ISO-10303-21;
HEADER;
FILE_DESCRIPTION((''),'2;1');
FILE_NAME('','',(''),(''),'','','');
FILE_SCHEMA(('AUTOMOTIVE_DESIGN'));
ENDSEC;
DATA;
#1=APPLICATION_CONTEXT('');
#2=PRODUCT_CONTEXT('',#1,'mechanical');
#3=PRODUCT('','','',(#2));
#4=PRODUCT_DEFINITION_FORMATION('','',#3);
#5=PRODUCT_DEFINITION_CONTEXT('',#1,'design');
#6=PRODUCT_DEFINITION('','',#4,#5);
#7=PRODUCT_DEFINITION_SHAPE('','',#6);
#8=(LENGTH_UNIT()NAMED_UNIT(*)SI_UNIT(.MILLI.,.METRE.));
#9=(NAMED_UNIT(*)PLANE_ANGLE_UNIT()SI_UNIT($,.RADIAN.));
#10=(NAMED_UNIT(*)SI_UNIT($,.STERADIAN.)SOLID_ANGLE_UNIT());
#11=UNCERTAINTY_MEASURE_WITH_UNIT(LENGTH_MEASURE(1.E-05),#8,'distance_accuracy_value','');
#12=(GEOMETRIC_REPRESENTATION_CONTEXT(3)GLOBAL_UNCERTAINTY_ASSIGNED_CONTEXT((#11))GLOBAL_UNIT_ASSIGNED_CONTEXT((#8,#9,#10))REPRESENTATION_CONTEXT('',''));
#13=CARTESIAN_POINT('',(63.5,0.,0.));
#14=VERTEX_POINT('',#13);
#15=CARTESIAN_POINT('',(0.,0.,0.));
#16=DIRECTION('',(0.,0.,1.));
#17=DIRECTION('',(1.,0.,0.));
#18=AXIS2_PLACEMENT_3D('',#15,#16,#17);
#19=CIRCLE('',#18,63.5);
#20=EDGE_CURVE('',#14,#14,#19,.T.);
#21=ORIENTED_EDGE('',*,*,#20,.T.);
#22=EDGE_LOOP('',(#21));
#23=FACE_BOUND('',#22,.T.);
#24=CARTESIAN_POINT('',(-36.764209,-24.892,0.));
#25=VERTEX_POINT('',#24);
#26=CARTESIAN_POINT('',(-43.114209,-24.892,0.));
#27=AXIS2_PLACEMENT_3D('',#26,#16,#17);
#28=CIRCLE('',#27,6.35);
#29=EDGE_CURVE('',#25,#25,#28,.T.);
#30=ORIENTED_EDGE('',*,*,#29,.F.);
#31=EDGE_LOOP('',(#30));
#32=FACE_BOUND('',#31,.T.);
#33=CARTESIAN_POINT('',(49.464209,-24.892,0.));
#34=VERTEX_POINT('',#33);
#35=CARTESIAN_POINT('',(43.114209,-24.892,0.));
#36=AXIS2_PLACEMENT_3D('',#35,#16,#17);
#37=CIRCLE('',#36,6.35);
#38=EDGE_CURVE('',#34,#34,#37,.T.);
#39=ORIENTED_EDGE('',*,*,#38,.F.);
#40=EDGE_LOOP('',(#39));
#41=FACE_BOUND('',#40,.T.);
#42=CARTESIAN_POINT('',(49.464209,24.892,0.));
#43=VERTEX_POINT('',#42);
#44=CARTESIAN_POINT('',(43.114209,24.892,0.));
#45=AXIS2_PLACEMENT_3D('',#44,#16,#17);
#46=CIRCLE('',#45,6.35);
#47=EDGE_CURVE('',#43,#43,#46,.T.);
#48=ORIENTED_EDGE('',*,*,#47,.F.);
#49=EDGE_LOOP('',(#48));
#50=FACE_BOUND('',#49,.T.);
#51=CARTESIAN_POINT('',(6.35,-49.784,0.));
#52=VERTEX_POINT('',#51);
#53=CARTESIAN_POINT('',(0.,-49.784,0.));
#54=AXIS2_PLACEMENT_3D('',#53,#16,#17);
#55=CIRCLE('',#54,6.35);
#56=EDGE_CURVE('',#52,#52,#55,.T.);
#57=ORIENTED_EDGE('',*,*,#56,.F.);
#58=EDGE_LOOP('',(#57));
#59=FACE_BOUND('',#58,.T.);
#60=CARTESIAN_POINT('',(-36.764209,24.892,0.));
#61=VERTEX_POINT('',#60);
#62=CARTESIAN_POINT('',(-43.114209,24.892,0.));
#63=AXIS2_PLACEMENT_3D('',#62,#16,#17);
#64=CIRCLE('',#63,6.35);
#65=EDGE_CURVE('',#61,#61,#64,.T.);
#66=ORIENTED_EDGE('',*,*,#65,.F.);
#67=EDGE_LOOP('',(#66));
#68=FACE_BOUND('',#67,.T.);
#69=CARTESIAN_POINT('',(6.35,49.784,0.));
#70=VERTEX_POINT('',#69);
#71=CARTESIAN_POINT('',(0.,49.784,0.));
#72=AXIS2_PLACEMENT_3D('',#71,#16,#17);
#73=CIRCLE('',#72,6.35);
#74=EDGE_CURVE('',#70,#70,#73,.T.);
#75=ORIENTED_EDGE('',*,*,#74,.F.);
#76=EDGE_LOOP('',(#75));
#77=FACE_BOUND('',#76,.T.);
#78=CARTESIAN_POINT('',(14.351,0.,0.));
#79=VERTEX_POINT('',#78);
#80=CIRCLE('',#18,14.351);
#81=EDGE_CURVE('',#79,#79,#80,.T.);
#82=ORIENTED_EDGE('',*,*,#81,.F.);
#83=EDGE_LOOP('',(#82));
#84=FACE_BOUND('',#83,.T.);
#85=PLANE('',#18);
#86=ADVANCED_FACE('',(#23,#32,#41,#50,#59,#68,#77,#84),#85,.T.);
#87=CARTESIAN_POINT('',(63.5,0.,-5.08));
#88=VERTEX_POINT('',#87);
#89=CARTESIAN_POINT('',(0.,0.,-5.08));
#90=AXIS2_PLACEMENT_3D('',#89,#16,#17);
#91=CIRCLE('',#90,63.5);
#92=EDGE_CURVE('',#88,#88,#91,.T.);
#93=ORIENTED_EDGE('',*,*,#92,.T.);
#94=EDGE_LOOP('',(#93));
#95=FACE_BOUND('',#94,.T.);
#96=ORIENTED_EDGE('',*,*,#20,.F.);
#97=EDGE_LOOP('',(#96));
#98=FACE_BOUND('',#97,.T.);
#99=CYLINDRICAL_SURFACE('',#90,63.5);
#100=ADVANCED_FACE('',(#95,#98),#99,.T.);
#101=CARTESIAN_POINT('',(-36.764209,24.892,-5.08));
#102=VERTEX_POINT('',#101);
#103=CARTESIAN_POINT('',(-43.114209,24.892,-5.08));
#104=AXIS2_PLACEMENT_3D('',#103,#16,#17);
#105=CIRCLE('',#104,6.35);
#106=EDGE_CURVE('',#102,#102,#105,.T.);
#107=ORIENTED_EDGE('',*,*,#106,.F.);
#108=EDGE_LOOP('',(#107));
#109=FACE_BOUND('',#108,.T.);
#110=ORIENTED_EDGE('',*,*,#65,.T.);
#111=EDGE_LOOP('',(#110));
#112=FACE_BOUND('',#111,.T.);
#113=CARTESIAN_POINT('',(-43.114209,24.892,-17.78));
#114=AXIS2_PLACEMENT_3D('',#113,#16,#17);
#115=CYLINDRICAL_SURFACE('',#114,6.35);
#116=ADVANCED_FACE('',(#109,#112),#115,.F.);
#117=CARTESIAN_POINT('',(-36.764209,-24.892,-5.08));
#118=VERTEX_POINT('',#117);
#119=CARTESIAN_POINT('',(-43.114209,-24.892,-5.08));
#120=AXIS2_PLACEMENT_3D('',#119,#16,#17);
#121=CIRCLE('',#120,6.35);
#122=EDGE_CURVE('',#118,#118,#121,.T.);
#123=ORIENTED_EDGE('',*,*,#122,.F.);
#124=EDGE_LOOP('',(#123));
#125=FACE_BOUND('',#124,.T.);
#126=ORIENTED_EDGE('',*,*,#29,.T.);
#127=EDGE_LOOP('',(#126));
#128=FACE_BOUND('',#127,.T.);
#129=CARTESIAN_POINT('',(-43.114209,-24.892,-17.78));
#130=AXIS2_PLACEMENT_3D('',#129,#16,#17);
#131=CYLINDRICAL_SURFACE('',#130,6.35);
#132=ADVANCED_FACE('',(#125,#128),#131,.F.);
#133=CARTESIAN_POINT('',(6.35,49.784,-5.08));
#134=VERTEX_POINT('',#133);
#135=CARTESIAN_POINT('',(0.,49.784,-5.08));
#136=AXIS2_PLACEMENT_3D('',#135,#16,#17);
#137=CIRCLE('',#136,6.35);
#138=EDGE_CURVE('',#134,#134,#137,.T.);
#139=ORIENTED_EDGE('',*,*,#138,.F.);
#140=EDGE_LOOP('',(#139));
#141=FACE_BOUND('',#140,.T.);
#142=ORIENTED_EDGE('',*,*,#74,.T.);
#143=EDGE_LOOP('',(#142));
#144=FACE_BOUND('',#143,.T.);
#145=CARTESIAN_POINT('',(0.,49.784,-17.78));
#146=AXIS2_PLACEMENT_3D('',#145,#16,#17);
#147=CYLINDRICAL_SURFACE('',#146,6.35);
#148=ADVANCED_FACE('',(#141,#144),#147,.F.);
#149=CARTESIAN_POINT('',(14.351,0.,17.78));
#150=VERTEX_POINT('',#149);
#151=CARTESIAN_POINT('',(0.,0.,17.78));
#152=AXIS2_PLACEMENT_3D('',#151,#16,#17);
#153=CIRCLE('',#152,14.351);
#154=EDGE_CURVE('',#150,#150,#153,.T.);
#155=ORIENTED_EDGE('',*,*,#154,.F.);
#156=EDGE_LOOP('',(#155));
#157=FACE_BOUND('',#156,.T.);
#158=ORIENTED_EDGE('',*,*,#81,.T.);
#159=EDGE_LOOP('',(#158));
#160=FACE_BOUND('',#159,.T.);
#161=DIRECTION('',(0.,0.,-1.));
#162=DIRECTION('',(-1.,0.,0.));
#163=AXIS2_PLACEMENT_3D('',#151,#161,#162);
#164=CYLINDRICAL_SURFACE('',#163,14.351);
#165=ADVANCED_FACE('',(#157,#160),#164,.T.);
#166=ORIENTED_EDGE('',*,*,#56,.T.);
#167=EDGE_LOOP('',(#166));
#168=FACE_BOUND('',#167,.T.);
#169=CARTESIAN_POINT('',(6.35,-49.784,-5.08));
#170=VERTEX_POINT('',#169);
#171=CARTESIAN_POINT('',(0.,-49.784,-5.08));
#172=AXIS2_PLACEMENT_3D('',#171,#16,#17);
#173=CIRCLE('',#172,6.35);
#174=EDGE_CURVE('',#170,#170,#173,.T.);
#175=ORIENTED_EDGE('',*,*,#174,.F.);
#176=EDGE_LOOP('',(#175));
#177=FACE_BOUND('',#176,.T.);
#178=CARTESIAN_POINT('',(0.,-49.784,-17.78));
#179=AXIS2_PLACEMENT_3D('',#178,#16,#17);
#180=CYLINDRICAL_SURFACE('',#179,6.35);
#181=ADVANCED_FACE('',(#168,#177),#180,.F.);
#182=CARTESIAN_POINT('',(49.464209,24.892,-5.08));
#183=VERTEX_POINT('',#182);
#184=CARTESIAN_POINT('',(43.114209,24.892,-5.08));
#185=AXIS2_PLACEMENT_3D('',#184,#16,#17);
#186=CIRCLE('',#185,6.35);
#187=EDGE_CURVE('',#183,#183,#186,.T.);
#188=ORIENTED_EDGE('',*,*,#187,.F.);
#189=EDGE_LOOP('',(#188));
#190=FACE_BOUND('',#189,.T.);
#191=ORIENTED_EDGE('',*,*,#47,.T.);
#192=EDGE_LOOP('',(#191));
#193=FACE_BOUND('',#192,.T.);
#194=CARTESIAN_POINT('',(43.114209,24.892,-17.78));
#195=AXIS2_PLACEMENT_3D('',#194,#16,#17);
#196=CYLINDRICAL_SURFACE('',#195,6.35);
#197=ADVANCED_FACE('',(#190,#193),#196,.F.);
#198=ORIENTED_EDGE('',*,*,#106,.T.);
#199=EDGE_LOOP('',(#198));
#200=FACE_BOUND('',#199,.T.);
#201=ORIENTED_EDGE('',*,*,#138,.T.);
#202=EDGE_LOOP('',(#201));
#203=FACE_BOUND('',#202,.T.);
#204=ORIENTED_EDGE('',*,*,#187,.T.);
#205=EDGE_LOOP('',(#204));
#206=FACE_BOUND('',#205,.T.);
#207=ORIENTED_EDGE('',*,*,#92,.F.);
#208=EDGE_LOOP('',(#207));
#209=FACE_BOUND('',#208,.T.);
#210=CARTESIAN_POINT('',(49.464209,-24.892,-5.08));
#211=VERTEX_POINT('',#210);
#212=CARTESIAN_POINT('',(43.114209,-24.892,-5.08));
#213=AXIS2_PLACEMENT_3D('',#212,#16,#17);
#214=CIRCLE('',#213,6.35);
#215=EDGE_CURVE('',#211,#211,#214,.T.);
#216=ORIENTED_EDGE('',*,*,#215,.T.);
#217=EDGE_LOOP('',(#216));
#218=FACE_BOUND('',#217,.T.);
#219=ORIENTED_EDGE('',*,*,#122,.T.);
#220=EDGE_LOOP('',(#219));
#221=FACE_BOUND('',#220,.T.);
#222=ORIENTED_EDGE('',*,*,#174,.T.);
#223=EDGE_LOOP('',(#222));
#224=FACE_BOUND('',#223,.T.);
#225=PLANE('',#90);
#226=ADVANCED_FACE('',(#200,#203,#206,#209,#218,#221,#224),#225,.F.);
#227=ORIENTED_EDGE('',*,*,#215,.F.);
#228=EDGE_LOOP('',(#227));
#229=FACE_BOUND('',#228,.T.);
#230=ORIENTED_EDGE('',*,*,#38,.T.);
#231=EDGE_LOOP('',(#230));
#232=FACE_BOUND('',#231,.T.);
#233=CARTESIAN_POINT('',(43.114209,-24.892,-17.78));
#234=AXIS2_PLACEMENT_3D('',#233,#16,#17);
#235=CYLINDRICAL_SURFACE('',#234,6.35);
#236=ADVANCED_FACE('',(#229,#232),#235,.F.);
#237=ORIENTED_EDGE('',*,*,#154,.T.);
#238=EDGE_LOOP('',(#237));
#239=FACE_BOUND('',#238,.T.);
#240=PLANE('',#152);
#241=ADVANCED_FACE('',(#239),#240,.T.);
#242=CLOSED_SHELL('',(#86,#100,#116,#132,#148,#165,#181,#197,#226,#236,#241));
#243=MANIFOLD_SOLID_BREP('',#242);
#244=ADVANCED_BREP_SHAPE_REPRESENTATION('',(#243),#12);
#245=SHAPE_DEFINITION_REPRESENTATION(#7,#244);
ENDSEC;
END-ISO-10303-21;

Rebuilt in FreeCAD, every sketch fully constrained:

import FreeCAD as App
import Part
import Sketcher
Q = App.Units.Quantity

doc = App.newDocument("Part")
body = doc.addObject("PartDesign::Body", "Body")

# Sketch on XY plane
sketch1 = body.newObject("Sketcher::SketchObject", "Sketch")
sketch1.AttachmentSupport = (doc.getObject("XY_Plane"), [""])
sketch1.MapMode = "FlatFace"
sketch1.addGeometry(Part.Circle(App.Vector(0, 0, 0), App.Vector(0, 0, 1), 63.5), False)
sketch1.addConstraint(Sketcher.Constraint("Coincident", 0, 3, -1, 1))
sketch1.addConstraint(Sketcher.Constraint("Diameter", 0, Q("5 in")))
pad1 = body.newObject("PartDesign::Pad", "Pad")
pad1.Profile = sketch1
pad1.Length = Q("0.2 in")
pad1.Reversed = True

# Sketch on XY plane
sketch2 = body.newObject("Sketcher::SketchObject", "Sketch001")
sketch2.AttachmentSupport = (doc.getObject("XY_Plane"), [""])
sketch2.MapMode = "FlatFace"
sketch2.addGeometry(Part.Circle(App.Vector(0, 0, 0), App.Vector(0, 0, 1), 14.351), False)
sketch2.addConstraint(Sketcher.Constraint("Coincident", 0, 3, -1, 1))
sketch2.addConstraint(Sketcher.Constraint("Diameter", 0, Q("1.13 in")))
pad2 = body.newObject("PartDesign::Pad", "Pad001")
pad2.Profile = sketch2
pad2.Length = Q("0.7 in")

# Sketch on XY plane
sketch3 = body.newObject("Sketcher::SketchObject", "Sketch002")
sketch3.AttachmentSupport = (doc.getObject("XY_Plane"), [""])
sketch3.MapMode = "FlatFace"
sketch3.addGeometry(Part.Circle(App.Vector(0, 49.784, 0), App.Vector(0, 0, 1), 6.35), False)
sketch3.addGeometry(Part.Circle(App.Vector(43.114209, 24.892, 0), App.Vector(0, 0, 1), 6.35), False)
sketch3.addGeometry(Part.Circle(App.Vector(43.114209, -24.892, 0), App.Vector(0, 0, 1), 6.35), False)
sketch3.addGeometry(Part.Circle(App.Vector(0, -49.784, 0), App.Vector(0, 0, 1), 6.35), False)
sketch3.addGeometry(Part.Circle(App.Vector(-43.114209, -24.892, 0), App.Vector(0, 0, 1), 6.35), False)
sketch3.addGeometry(Part.Circle(App.Vector(-43.114209, 24.892, 0), App.Vector(0, 0, 1), 6.35), False)
sketch3.addConstraint(Sketcher.Constraint("Equal", 0, 1))
sketch3.addConstraint(Sketcher.Constraint("Equal", 1, 2))
sketch3.addConstraint(Sketcher.Constraint("Equal", 2, 3))
sketch3.addConstraint(Sketcher.Constraint("Equal", 3, 4))
sketch3.addConstraint(Sketcher.Constraint("Equal", 4, 5))
sketch3.addConstraint(Sketcher.Constraint("Symmetric", 0, 3, 3, 3, -1, 1))
sketch3.addConstraint(Sketcher.Constraint("Symmetric", 1, 3, 4, 3, -1, 1))
sketch3.addConstraint(Sketcher.Constraint("Symmetric", 2, 3, 5, 3, -1, 1))
sketch3.addConstraint(Sketcher.Constraint("Symmetric", 2, 3, 4, 3, -2))
sketch3.addConstraint(Sketcher.Constraint("PointOnObject", 0, 3, -2))
sketch3.addConstraint(Sketcher.Constraint("Diameter", 0, Q("0.5 in")))
sketch3.addConstraint(Sketcher.Constraint("DistanceY", -1, 1, 0, 3, Q("1.96 in")))
sketch3.addConstraint(Sketcher.Constraint("DistanceY", -1, 1, 1, 3, Q("0.98 in")))
sketch3.addConstraint(Sketcher.Constraint("DistanceX", -1, 1, 1, 3, 43.114209))
pocket1 = body.newObject("PartDesign::Pocket", "Pocket")
pocket1.Profile = sketch3
pocket1.Length = Q("0.7 in")

doc.recompute()
